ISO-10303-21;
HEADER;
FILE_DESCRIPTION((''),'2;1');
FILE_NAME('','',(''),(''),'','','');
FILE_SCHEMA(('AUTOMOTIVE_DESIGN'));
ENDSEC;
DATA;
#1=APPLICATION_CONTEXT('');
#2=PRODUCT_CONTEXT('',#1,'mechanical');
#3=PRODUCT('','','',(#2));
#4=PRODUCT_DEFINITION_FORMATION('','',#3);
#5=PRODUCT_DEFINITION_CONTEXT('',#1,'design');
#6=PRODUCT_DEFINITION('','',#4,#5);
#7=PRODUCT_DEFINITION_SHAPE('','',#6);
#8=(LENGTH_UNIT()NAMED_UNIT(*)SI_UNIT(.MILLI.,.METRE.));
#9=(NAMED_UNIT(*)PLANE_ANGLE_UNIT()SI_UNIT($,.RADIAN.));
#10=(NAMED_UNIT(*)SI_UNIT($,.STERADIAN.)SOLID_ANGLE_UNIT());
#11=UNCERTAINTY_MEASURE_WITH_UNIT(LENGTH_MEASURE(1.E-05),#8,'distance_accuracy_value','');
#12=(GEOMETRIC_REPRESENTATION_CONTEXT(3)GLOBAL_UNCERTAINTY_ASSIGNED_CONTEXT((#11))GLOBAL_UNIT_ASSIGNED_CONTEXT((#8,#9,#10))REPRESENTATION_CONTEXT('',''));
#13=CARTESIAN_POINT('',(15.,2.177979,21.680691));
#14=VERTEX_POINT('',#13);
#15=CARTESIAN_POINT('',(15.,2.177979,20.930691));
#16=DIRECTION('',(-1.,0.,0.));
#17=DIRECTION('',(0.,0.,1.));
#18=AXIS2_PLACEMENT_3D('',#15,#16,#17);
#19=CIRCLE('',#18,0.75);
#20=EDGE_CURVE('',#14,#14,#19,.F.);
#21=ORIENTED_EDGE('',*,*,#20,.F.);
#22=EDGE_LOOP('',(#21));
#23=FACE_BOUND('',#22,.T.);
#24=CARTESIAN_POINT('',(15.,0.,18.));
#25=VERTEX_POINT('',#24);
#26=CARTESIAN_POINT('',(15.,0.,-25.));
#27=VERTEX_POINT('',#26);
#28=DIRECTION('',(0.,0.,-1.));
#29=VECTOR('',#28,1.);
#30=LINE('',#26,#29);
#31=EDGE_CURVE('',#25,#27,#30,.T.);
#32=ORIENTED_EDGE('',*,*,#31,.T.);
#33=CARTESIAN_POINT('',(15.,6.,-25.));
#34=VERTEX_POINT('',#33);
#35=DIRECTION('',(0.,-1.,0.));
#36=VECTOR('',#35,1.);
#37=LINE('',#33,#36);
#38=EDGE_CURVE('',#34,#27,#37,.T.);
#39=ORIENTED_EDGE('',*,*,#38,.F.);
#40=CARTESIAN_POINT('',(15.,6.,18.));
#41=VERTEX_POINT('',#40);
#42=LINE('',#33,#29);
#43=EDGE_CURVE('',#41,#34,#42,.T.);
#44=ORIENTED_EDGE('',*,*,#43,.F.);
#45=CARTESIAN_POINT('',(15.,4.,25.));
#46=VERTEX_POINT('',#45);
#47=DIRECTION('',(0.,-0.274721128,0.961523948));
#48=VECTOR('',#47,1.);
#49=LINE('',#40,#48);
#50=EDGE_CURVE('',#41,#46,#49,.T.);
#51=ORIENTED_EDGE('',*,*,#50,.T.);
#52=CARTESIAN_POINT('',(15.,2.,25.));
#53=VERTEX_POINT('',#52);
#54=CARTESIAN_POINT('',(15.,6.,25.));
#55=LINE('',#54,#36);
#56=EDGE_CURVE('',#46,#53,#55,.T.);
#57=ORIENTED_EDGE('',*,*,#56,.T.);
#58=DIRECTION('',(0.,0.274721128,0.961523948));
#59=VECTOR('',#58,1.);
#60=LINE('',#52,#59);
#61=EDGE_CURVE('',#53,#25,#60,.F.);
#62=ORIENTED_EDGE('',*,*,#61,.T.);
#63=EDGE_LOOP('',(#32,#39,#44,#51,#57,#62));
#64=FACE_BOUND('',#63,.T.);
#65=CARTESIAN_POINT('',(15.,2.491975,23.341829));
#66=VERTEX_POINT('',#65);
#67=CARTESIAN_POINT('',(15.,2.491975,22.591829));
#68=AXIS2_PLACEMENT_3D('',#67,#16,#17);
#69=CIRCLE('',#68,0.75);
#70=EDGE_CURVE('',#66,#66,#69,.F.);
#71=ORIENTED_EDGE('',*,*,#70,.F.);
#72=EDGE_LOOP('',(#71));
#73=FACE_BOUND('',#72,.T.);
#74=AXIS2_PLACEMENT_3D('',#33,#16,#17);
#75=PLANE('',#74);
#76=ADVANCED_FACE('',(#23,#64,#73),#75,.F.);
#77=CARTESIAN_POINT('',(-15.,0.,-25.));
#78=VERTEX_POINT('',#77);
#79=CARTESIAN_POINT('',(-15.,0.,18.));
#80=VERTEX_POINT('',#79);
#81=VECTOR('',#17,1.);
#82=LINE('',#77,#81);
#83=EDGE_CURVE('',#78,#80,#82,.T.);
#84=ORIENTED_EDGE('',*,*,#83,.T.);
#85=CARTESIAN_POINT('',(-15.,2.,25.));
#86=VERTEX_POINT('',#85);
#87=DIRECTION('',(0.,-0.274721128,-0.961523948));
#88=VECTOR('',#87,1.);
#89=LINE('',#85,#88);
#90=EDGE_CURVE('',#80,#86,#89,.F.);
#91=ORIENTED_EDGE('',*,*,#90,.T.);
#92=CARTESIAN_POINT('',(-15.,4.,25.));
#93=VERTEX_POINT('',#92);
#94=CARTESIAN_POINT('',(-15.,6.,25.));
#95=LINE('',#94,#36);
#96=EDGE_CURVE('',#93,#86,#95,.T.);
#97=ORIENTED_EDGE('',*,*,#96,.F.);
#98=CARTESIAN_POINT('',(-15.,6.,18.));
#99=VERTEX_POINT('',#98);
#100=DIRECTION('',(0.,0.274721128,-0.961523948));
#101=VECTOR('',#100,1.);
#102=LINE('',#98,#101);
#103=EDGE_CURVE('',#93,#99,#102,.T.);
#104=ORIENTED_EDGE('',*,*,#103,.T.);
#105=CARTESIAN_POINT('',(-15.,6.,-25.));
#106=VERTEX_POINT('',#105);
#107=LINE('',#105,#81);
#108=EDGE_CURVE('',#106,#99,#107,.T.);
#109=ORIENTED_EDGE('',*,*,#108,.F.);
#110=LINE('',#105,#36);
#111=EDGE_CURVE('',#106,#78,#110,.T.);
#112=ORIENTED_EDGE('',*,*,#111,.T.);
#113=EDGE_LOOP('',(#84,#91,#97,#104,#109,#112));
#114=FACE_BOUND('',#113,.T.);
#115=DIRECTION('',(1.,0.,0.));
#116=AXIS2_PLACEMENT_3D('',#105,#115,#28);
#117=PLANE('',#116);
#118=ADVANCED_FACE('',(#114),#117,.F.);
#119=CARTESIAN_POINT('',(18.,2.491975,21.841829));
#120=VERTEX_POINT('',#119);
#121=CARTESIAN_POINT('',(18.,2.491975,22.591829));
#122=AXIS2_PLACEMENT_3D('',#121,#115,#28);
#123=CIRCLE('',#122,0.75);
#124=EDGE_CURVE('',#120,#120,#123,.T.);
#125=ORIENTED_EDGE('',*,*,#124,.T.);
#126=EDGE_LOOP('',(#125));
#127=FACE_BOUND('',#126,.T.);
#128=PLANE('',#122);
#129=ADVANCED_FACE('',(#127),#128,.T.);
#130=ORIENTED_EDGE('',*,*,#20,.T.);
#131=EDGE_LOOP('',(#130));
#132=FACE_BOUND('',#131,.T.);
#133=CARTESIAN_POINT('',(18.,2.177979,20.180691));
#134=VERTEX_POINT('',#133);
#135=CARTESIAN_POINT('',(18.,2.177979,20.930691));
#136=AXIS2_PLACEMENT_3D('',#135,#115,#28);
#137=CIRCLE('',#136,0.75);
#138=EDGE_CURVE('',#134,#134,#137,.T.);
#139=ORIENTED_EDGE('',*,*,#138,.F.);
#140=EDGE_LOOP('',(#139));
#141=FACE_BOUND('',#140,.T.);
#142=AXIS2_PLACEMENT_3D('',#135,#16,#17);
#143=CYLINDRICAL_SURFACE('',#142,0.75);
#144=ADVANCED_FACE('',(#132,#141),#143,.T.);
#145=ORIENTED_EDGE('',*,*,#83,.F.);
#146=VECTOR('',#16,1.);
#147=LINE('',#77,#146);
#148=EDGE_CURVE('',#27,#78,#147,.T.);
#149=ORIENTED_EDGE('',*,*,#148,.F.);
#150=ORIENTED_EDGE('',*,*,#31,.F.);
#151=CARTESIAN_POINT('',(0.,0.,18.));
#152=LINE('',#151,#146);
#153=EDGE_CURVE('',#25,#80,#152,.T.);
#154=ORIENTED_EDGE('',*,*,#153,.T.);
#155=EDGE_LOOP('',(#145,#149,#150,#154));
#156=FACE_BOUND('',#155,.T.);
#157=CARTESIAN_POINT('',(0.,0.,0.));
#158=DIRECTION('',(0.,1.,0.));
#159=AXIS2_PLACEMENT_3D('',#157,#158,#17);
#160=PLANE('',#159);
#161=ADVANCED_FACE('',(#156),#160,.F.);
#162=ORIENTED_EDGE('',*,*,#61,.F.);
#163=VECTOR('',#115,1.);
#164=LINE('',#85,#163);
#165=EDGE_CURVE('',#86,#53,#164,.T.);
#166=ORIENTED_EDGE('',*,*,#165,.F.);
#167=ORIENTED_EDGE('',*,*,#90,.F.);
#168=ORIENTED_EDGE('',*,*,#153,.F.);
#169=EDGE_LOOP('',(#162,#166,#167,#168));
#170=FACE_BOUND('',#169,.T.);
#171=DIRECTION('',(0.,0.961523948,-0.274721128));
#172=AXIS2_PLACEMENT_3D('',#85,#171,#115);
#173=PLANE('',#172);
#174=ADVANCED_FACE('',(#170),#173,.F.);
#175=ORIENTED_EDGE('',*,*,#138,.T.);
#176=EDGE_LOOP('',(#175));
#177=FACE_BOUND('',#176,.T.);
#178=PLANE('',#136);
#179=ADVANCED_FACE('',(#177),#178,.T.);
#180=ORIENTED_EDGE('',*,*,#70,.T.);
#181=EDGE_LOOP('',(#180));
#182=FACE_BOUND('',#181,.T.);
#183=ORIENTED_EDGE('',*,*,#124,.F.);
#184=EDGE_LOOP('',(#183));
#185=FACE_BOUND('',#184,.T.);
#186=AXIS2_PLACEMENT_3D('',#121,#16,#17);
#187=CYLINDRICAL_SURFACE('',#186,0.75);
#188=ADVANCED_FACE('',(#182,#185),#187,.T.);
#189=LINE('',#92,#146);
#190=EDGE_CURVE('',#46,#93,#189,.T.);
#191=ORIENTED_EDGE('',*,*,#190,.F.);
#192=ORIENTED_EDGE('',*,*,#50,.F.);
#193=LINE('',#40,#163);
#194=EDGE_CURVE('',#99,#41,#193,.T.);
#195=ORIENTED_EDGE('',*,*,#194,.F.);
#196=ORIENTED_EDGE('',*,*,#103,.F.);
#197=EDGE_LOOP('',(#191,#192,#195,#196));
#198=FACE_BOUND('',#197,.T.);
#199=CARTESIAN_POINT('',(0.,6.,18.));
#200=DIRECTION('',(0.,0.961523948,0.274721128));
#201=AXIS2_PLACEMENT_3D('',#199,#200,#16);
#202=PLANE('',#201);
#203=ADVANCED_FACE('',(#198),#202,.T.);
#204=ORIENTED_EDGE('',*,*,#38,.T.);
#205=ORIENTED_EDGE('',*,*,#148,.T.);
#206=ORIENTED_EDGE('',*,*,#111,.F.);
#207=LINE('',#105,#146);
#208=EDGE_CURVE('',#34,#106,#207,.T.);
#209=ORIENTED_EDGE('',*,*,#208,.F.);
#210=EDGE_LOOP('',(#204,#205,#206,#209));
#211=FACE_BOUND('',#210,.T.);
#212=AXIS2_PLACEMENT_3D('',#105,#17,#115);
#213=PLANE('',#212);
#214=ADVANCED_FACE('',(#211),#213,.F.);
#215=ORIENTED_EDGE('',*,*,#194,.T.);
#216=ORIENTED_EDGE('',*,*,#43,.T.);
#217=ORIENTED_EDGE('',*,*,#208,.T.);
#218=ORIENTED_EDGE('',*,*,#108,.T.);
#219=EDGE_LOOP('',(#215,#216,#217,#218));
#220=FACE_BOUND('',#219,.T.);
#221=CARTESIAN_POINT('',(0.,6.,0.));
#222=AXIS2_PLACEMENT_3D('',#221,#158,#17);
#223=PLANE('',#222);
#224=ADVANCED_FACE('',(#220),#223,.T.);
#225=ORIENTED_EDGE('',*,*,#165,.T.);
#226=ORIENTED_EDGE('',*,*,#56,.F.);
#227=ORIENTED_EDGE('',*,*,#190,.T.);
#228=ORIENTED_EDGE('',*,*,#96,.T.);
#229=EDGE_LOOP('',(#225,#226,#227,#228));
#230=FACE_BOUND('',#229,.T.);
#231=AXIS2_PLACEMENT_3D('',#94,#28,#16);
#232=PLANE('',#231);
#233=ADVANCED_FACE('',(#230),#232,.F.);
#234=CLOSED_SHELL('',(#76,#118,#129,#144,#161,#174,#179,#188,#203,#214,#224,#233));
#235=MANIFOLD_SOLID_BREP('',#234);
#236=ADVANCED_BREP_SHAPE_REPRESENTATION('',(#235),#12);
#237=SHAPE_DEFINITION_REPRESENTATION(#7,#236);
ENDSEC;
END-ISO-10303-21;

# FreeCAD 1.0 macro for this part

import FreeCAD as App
import Part
import Sketcher
from FreeCAD import Vector


def edges_at(feature, points):
    """Names of the edges that pass closest to the given points."""
    edges = feature.Shape.Edges
    near = lambda p: min(range(len(edges)), key=lambda i: edges[i].distToShape(Part.Vertex(*p))[0])
    return sorted({f"Edge{near(p) + 1}" for p in points})

doc = App.newDocument("Part")
body = doc.addObject("PartDesign::Body", "Body")

# Sketch on XZ plane
sketch1 = doc.addObject("Sketcher::SketchObject", "Sketch")
body.addObject(sketch1)
sketch1.AttachmentSupport = (doc.XZ_Plane, [""])
sketch1.MapMode = "FlatFace"
sketch1.addGeometry(Part.LineSegment(Vector(-15, -25, 0), Vector(-15, 25, 0)), False)
sketch1.addGeometry(Part.LineSegment(Vector(-15, 25, 0), Vector(15, 25, 0)), False)
sketch1.addGeometry(Part.LineSegment(Vector(15, 25, 0), Vector(15, -25, 0)), False)
sketch1.addGeometry(Part.LineSegment(Vector(15, -25, 0), Vector(-15, -25, 0)), False)
sketch1.addConstraint(Sketcher.Constraint("Coincident", 0, 2, 1, 1))
sketch1.addConstraint(Sketcher.Constraint("Coincident", 1, 2, 2, 1))
sketch1.addConstraint(Sketcher.Constraint("Coincident", 2, 2, 3, 1))
sketch1.addConstraint(Sketcher.Constraint("Coincident", 3, 2, 0, 1))
sketch1.addConstraint(Sketcher.Constraint("Vertical", 0))
sketch1.addConstraint(Sketcher.Constraint("Horizontal", 1))
sketch1.addConstraint(Sketcher.Constraint("Vertical", 2))
sketch1.addConstraint(Sketcher.Constraint("Horizontal", 3))
sketch1.addConstraint(Sketcher.Constraint("Symmetric", 0, 2, 2, 2, -1, 1))
sketch1.addConstraint(Sketcher.Constraint("DistanceX", 1, 1, 1, 2, 30.0))
sketch1.addConstraint(Sketcher.Constraint("DistanceY", 0, 1, 0, 2, 50.0))
pad1 = doc.addObject("PartDesign::Pad", "Pad")
body.addObject(pad1)
pad1.Profile = sketch1
pad1.Length = 6
pad1.Reversed = True
doc.recompute()

chamfer = doc.addObject("PartDesign::Chamfer", "Chamfer")
body.addObject(chamfer)
chamfer.Base = (pad1, edges_at(pad1, [(0, 0, 25), (0, 6, 25)]))
chamfer.ChamferType = "Two distances"
chamfer.Size = 2
chamfer.Size2 = 7

# Sketch on YZ plane
sketch2 = doc.addObject("Sketcher::SketchObject", "Sketch001")
body.addObject(sketch2)
sketch2.AttachmentSupport = (doc.YZ_Plane, [""])
sketch2.MapMode = "FlatFace"
sketch2.AttachmentOffset = App.Placement(Vector(0, 0, 15), App.Rotation())
sketch2.addGeometry(Part.Circle(Vector(2.5, 22.6, 0), Vector(0, 0, 1), 0.8), False)
sketch2.addGeometry(Part.Circle(Vector(2.2, 20.9, 0), Vector(0, 0, 1), 0.8), False)
sketch2.addConstraint(Sketcher.Constraint("Equal", 0, 1))
sketch2.addConstraint(Sketcher.Constraint("Diameter", 0, 1.5))
sketch2.addConstraint(Sketcher.Constraint("DistanceY", -1, 1, 0, 3, 22.591829))
sketch2.addConstraint(Sketcher.Constraint("DistanceX", -1, 1, 1, 3, 2.177979))
sketch2.addConstraint(Sketcher.Constraint("DistanceY", -1, 1, 1, 3, 20.930691))
sketch2.addConstraint(Sketcher.Constraint("DistanceX", -1, 1, 0, 3, 2.491975))
pad2 = doc.addObject("PartDesign::Pad", "Pad001")
body.addObject(pad2)
pad2.Profile = sketch2
pad2.Length = 3

doc.recompute()
